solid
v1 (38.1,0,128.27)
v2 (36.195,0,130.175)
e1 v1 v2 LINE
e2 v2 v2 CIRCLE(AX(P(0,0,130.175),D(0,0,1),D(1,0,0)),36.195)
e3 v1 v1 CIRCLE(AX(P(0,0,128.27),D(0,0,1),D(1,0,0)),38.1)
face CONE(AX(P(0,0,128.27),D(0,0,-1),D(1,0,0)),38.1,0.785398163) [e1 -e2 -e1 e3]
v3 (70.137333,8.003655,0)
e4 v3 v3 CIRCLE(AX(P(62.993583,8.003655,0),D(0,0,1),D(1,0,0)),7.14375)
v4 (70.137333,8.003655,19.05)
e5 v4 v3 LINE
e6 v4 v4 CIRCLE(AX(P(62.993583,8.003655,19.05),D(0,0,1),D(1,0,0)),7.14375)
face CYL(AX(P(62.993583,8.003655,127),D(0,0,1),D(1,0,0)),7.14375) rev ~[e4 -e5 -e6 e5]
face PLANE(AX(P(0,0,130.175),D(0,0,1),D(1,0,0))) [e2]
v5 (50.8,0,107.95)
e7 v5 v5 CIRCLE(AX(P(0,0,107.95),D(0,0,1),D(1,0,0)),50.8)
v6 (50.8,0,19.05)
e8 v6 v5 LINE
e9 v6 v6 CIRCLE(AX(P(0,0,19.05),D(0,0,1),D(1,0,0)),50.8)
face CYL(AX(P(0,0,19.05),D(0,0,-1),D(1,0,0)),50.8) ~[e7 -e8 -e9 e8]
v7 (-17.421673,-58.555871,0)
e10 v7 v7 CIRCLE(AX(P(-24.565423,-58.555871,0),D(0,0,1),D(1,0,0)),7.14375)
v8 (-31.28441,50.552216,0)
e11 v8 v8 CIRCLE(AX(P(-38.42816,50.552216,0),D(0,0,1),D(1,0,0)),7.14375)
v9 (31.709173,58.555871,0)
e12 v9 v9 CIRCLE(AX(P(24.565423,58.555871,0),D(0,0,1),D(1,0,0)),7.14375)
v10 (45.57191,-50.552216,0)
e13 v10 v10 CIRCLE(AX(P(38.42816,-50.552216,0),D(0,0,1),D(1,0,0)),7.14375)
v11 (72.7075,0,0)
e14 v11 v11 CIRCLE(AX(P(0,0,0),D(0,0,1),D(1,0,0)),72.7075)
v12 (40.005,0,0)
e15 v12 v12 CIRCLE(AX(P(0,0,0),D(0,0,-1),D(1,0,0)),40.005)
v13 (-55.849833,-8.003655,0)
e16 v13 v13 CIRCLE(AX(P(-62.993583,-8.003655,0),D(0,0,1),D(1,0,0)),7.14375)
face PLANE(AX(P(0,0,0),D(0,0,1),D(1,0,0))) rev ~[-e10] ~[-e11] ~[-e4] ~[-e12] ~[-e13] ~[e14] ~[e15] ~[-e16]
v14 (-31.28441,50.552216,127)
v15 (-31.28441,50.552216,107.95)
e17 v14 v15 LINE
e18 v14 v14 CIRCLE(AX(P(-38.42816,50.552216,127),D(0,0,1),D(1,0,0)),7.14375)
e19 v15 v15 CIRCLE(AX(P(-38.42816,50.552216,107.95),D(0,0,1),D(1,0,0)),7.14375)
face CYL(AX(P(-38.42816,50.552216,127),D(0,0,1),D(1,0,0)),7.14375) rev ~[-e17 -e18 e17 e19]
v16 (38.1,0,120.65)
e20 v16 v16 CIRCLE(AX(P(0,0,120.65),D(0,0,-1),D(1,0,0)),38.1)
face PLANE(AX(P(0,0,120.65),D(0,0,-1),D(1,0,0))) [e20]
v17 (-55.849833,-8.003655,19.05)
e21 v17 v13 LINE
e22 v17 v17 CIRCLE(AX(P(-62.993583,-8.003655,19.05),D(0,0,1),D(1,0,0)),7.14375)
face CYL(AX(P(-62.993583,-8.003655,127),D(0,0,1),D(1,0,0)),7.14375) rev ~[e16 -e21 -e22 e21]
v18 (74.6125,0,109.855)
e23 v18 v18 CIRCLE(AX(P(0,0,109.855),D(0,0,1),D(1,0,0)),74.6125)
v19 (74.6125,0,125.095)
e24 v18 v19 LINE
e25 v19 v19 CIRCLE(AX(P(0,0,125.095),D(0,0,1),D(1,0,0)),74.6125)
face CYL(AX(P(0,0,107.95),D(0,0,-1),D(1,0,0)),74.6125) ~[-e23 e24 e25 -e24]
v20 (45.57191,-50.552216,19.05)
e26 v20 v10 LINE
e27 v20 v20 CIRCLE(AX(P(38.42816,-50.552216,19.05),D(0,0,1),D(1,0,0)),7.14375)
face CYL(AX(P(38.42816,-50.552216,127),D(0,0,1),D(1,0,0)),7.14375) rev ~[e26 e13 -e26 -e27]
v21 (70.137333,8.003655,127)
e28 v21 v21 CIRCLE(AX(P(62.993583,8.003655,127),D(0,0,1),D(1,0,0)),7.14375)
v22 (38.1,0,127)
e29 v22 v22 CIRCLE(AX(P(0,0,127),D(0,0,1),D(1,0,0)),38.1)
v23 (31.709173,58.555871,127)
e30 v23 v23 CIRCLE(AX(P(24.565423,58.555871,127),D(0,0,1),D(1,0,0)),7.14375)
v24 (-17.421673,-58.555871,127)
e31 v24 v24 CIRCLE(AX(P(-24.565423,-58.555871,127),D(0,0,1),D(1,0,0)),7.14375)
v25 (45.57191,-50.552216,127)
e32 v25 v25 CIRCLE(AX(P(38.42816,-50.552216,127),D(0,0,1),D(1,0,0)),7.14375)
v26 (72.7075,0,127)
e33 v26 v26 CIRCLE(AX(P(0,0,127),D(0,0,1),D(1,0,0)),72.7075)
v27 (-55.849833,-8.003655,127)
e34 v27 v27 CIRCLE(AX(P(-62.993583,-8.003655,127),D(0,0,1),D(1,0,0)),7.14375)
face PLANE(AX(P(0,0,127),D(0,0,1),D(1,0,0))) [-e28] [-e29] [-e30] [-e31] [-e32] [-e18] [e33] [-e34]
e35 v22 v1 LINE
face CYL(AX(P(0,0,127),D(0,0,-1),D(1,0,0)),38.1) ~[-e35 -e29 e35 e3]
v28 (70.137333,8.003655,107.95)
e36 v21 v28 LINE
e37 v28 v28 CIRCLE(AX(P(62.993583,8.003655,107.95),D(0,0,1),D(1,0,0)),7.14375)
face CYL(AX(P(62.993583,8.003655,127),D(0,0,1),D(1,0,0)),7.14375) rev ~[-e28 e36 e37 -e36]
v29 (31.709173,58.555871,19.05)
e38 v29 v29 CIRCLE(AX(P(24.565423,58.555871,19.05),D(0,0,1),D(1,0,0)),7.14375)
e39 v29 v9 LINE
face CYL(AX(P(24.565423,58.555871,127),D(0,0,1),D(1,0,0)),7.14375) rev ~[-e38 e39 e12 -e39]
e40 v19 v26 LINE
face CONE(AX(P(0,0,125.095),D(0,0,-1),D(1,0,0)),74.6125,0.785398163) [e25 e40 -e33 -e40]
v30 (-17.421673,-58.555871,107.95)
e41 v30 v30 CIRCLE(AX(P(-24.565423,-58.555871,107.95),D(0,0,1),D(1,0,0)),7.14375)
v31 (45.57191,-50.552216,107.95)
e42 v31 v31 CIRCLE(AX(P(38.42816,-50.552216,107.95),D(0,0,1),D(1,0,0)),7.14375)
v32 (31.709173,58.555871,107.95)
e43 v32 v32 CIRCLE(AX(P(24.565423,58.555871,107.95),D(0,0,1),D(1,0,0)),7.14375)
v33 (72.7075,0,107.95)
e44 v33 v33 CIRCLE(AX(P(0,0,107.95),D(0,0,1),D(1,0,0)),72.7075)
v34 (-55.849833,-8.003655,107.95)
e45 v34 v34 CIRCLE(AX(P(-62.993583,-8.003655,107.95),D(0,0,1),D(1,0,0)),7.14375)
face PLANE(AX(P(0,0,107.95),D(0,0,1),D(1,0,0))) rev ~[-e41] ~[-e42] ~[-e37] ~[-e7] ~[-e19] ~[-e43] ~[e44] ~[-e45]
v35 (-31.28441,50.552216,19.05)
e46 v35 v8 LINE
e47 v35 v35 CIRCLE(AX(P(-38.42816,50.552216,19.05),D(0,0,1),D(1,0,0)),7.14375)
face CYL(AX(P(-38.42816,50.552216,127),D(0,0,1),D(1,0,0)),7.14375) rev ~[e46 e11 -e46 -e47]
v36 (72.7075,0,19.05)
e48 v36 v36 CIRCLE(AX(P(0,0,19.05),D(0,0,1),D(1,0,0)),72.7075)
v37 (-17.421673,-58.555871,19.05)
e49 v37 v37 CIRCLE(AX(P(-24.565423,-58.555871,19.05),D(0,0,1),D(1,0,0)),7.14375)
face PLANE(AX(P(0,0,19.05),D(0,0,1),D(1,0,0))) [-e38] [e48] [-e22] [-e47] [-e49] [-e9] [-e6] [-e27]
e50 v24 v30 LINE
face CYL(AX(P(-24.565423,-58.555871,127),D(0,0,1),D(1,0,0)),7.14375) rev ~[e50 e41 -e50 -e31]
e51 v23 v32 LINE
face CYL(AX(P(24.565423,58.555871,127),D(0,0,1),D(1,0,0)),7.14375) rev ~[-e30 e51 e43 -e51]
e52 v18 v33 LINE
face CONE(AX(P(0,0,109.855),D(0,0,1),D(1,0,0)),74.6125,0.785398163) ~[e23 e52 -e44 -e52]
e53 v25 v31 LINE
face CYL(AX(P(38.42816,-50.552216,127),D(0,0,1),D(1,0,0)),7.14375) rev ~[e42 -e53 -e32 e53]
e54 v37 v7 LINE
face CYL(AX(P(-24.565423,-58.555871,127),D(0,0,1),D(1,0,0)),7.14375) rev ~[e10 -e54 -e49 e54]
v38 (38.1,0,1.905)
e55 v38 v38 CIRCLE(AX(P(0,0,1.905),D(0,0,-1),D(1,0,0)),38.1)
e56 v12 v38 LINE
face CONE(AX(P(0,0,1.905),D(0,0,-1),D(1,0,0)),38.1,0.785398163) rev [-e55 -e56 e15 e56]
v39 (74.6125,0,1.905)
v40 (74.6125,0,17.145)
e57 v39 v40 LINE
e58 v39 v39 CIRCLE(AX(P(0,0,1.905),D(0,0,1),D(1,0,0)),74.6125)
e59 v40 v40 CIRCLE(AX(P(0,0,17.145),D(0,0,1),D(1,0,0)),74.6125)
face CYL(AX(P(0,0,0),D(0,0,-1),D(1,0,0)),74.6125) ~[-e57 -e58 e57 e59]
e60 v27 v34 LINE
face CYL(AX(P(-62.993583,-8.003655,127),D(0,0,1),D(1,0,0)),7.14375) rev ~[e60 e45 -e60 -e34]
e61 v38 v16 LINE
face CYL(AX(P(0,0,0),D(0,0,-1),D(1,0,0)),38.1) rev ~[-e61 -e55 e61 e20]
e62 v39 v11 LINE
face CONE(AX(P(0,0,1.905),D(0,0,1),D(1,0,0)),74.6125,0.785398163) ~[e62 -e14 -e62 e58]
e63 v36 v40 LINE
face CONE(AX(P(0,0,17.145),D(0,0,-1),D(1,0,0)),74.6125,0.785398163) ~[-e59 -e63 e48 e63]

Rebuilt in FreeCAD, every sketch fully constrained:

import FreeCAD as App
import Part
import Sketcher
from FreeCAD import Vector
Q = App.Units.Quantity


def edges_at(feature, points):
    """Names of the edges that pass closest to the given points."""
    edges = feature.Shape.Edges
    near = lambda p: min(range(len(edges)), key=lambda i: edges[i].distToShape(Part.Vertex(*p))[0])
    return sorted({f"Edge{near(p) + 1}" for p in points})

doc = App.newDocument("Part")
body = doc.addObject("PartDesign::Body", "Body")

sketch1 = body.newObject("Sketcher::SketchObject", "Sketch")
sketch1.AttachmentSupport = (doc.getObject("XY_Plane"), [""])
sketch1.MapMode = "FlatFace"
sketch1.addGeometry(Part.Circle(Vector(0, 0, 0), Vector(0, 0, 1), 75), False)
sketch1.addConstraint([
    Sketcher.Constraint("Coincident", 0, 3, -1, 1),
    Sketcher.Constraint("Diameter", 0, Q("5.875 in")),
])
pad1 = body.newObject("PartDesign::Pad", "Pad")
pad1.Profile = sketch1
pad1.Length = Q("0.75 in")

sketch2 = body.newObject("Sketcher::SketchObject", "Sketch001")
sketch2.AttachmentSupport = (doc.getObject("XY_Plane"), [""])
sketch2.MapMode = "FlatFace"
sketch2.AttachmentOffset = App.Placement(Vector(0, 0, 0.75 * 25.4), App.Rotation())
sketch2.addGeometry(Part.Circle(Vector(0, 0, 0), Vector(0, 0, 1), 51), False)
sketch2.addConstraint([
    Sketcher.Constraint("Coincident", 0, 3, -1, 1),
    Sketcher.Constraint("Diameter", 0, Q("4 in")),
])
pad2 = body.newObject("PartDesign::Pad", "Pad001")
pad2.Profile = sketch2
pad2.Length = Q("3.5 in")

sketch3 = body.newObject("Sketcher::SketchObject", "Sketch002")
sketch3.AttachmentSupport = (doc.getObject("XY_Plane"), [""])
sketch3.MapMode = "FlatFace"
sketch3.AttachmentOffset = App.Placement(Vector(0, 0, 4.25 * 25.4), App.Rotation())
sketch3.addGeometry(Part.Circle(Vector(0, 0, 0), Vector(0, 0, 1), 75), False)
sketch3.addConstraint([
    Sketcher.Constraint("Coincident", 0, 3, -1, 1),
    Sketcher.Constraint("Diameter", 0, Q("5.875 in")),
])
pad3 = body.newObject("PartDesign::Pad", "Pad002")
pad3.Profile = sketch3
pad3.Length = Q("0.75 in")

sketch4 = body.newObject("Sketcher::SketchObject", "Sketch003")
sketch4.AttachmentSupport = (doc.getObject("XY_Plane"), [""])
sketch4.MapMode = "FlatFace"
sketch4.AttachmentOffset = App.Placement(Vector(0, 0, 5 * 25.4), App.Rotation())
sketch4.addGeometry([
    Part.Circle(Vector(25, 59, 0), Vector(0, 0, 1), 7),
    Part.Circle(Vector(-38, 51, 0), Vector(0, 0, 1), 7),
    Part.Circle(Vector(-63, -8, 0), Vector(0, 0, 1), 7),
    Part.Circle(Vector(-25, -59, 0), Vector(0, 0, 1), 7),
    Part.Circle(Vector(38, -51, 0), Vector(0, 0, 1), 7),
    Part.Circle(Vector(63, 8, 0), Vector(0, 0, 1), 7),
], False)
sketch4.addConstraint([
    Sketcher.Constraint("Equal", 0, 1),
    Sketcher.Constraint("Equal", 1, 2),
    Sketcher.Constraint("Equal", 2, 3),
    Sketcher.Constraint("Equal", 3, 4),
    Sketcher.Constraint("Equal", 4, 5),
    Sketcher.Constraint("Symmetric", 0, 3, 3, 3, -1, 1),
    Sketcher.Constraint("Symmetric", 1, 3, 4, 3, -1, 1),
    Sketcher.Constraint("Symmetric", 2, 3, 5, 3, -1, 1),
    Sketcher.Constraint("Diameter", 0, Q("0.5625 in")),
    Sketcher.Constraint("DistanceY", -1, 1, 0, 3, Q("58.555871 mm")),
    Sketcher.Constraint("DistanceX", 1, 3, -1, 1, Q("38.42816 mm")),
    Sketcher.Constraint("DistanceY", 2, 3, 1, 3, Q("58.555871 mm")),
    Sketcher.Constraint("DistanceX", 2, 3, 3, 3, Q("38.42816 mm")),
    Sketcher.Constraint("DistanceY", 4, 3, 2, 3, Q("42.548561 mm")),
    Sketcher.Constraint("DistanceX", -1, 1, 0, 3, Q("24.565423 mm")),
])
pocket1 = body.newObject("PartDesign::Pocket", "Pocket")
pocket1.Profile = sketch4
pocket1.Type = "ThroughAll"

sketch5 = body.newObject("Sketcher::SketchObject", "Sketch004")
sketch5.AttachmentSupport = (doc.getObject("XY_Plane"), [""])
sketch5.MapMode = "FlatFace"
sketch5.AttachmentOffset = App.Placement(Vector(0, 0, 5 * 25.4), App.Rotation())
sketch5.addGeometry(Part.Circle(Vector(0, 0, 0), Vector(0, 0, 1), 38), False)
sketch5.addConstraint([
    Sketcher.Constraint("Coincident", 0, 3, -1, 1),
    Sketcher.Constraint("Diameter", 0, Q("3 in")),
])
pad4 = body.newObject("PartDesign::Pad", "Pad003")
pad4.Profile = sketch5
pad4.Length = Q("0.125 in")

sketch6 = body.newObject("Sketcher::SketchObject", "Sketch005")
sketch6.AttachmentSupport = (doc.getObject("XY_Plane"), [""])
sketch6.MapMode = "FlatFace"
sketch6.addGeometry(Part.Circle(Vector(0, 0, 0), Vector(0, 0, 1), 38), False)
sketch6.addConstraint([
    Sketcher.Constraint("Coincident", 0, 3, -1, 1),
    Sketcher.Constraint("Diameter", 0, Q("3 in")),
])
pocket2 = body.newObject("PartDesign::Pocket", "Pocket001")
pocket2.Profile = sketch6
pocket2.Length = Q("4.75 in")
pocket2.Reversed = True
doc.recompute()

chamfer = body.newObject("PartDesign::Chamfer", "Chamfer")
chamfer.Base = (pocket2, edges_at(pocket2, [
    (-74.612, 0, 0),
    (-38.1, 0, 0),
    (-74.612, 0, 19.05),
    (-74.612, 0, 107.95),
    (-74.612, 0, 127),
    (-38.1, 0, 130.175),
]))
chamfer.Size = Q("0.075 in")

doc.recompute()
